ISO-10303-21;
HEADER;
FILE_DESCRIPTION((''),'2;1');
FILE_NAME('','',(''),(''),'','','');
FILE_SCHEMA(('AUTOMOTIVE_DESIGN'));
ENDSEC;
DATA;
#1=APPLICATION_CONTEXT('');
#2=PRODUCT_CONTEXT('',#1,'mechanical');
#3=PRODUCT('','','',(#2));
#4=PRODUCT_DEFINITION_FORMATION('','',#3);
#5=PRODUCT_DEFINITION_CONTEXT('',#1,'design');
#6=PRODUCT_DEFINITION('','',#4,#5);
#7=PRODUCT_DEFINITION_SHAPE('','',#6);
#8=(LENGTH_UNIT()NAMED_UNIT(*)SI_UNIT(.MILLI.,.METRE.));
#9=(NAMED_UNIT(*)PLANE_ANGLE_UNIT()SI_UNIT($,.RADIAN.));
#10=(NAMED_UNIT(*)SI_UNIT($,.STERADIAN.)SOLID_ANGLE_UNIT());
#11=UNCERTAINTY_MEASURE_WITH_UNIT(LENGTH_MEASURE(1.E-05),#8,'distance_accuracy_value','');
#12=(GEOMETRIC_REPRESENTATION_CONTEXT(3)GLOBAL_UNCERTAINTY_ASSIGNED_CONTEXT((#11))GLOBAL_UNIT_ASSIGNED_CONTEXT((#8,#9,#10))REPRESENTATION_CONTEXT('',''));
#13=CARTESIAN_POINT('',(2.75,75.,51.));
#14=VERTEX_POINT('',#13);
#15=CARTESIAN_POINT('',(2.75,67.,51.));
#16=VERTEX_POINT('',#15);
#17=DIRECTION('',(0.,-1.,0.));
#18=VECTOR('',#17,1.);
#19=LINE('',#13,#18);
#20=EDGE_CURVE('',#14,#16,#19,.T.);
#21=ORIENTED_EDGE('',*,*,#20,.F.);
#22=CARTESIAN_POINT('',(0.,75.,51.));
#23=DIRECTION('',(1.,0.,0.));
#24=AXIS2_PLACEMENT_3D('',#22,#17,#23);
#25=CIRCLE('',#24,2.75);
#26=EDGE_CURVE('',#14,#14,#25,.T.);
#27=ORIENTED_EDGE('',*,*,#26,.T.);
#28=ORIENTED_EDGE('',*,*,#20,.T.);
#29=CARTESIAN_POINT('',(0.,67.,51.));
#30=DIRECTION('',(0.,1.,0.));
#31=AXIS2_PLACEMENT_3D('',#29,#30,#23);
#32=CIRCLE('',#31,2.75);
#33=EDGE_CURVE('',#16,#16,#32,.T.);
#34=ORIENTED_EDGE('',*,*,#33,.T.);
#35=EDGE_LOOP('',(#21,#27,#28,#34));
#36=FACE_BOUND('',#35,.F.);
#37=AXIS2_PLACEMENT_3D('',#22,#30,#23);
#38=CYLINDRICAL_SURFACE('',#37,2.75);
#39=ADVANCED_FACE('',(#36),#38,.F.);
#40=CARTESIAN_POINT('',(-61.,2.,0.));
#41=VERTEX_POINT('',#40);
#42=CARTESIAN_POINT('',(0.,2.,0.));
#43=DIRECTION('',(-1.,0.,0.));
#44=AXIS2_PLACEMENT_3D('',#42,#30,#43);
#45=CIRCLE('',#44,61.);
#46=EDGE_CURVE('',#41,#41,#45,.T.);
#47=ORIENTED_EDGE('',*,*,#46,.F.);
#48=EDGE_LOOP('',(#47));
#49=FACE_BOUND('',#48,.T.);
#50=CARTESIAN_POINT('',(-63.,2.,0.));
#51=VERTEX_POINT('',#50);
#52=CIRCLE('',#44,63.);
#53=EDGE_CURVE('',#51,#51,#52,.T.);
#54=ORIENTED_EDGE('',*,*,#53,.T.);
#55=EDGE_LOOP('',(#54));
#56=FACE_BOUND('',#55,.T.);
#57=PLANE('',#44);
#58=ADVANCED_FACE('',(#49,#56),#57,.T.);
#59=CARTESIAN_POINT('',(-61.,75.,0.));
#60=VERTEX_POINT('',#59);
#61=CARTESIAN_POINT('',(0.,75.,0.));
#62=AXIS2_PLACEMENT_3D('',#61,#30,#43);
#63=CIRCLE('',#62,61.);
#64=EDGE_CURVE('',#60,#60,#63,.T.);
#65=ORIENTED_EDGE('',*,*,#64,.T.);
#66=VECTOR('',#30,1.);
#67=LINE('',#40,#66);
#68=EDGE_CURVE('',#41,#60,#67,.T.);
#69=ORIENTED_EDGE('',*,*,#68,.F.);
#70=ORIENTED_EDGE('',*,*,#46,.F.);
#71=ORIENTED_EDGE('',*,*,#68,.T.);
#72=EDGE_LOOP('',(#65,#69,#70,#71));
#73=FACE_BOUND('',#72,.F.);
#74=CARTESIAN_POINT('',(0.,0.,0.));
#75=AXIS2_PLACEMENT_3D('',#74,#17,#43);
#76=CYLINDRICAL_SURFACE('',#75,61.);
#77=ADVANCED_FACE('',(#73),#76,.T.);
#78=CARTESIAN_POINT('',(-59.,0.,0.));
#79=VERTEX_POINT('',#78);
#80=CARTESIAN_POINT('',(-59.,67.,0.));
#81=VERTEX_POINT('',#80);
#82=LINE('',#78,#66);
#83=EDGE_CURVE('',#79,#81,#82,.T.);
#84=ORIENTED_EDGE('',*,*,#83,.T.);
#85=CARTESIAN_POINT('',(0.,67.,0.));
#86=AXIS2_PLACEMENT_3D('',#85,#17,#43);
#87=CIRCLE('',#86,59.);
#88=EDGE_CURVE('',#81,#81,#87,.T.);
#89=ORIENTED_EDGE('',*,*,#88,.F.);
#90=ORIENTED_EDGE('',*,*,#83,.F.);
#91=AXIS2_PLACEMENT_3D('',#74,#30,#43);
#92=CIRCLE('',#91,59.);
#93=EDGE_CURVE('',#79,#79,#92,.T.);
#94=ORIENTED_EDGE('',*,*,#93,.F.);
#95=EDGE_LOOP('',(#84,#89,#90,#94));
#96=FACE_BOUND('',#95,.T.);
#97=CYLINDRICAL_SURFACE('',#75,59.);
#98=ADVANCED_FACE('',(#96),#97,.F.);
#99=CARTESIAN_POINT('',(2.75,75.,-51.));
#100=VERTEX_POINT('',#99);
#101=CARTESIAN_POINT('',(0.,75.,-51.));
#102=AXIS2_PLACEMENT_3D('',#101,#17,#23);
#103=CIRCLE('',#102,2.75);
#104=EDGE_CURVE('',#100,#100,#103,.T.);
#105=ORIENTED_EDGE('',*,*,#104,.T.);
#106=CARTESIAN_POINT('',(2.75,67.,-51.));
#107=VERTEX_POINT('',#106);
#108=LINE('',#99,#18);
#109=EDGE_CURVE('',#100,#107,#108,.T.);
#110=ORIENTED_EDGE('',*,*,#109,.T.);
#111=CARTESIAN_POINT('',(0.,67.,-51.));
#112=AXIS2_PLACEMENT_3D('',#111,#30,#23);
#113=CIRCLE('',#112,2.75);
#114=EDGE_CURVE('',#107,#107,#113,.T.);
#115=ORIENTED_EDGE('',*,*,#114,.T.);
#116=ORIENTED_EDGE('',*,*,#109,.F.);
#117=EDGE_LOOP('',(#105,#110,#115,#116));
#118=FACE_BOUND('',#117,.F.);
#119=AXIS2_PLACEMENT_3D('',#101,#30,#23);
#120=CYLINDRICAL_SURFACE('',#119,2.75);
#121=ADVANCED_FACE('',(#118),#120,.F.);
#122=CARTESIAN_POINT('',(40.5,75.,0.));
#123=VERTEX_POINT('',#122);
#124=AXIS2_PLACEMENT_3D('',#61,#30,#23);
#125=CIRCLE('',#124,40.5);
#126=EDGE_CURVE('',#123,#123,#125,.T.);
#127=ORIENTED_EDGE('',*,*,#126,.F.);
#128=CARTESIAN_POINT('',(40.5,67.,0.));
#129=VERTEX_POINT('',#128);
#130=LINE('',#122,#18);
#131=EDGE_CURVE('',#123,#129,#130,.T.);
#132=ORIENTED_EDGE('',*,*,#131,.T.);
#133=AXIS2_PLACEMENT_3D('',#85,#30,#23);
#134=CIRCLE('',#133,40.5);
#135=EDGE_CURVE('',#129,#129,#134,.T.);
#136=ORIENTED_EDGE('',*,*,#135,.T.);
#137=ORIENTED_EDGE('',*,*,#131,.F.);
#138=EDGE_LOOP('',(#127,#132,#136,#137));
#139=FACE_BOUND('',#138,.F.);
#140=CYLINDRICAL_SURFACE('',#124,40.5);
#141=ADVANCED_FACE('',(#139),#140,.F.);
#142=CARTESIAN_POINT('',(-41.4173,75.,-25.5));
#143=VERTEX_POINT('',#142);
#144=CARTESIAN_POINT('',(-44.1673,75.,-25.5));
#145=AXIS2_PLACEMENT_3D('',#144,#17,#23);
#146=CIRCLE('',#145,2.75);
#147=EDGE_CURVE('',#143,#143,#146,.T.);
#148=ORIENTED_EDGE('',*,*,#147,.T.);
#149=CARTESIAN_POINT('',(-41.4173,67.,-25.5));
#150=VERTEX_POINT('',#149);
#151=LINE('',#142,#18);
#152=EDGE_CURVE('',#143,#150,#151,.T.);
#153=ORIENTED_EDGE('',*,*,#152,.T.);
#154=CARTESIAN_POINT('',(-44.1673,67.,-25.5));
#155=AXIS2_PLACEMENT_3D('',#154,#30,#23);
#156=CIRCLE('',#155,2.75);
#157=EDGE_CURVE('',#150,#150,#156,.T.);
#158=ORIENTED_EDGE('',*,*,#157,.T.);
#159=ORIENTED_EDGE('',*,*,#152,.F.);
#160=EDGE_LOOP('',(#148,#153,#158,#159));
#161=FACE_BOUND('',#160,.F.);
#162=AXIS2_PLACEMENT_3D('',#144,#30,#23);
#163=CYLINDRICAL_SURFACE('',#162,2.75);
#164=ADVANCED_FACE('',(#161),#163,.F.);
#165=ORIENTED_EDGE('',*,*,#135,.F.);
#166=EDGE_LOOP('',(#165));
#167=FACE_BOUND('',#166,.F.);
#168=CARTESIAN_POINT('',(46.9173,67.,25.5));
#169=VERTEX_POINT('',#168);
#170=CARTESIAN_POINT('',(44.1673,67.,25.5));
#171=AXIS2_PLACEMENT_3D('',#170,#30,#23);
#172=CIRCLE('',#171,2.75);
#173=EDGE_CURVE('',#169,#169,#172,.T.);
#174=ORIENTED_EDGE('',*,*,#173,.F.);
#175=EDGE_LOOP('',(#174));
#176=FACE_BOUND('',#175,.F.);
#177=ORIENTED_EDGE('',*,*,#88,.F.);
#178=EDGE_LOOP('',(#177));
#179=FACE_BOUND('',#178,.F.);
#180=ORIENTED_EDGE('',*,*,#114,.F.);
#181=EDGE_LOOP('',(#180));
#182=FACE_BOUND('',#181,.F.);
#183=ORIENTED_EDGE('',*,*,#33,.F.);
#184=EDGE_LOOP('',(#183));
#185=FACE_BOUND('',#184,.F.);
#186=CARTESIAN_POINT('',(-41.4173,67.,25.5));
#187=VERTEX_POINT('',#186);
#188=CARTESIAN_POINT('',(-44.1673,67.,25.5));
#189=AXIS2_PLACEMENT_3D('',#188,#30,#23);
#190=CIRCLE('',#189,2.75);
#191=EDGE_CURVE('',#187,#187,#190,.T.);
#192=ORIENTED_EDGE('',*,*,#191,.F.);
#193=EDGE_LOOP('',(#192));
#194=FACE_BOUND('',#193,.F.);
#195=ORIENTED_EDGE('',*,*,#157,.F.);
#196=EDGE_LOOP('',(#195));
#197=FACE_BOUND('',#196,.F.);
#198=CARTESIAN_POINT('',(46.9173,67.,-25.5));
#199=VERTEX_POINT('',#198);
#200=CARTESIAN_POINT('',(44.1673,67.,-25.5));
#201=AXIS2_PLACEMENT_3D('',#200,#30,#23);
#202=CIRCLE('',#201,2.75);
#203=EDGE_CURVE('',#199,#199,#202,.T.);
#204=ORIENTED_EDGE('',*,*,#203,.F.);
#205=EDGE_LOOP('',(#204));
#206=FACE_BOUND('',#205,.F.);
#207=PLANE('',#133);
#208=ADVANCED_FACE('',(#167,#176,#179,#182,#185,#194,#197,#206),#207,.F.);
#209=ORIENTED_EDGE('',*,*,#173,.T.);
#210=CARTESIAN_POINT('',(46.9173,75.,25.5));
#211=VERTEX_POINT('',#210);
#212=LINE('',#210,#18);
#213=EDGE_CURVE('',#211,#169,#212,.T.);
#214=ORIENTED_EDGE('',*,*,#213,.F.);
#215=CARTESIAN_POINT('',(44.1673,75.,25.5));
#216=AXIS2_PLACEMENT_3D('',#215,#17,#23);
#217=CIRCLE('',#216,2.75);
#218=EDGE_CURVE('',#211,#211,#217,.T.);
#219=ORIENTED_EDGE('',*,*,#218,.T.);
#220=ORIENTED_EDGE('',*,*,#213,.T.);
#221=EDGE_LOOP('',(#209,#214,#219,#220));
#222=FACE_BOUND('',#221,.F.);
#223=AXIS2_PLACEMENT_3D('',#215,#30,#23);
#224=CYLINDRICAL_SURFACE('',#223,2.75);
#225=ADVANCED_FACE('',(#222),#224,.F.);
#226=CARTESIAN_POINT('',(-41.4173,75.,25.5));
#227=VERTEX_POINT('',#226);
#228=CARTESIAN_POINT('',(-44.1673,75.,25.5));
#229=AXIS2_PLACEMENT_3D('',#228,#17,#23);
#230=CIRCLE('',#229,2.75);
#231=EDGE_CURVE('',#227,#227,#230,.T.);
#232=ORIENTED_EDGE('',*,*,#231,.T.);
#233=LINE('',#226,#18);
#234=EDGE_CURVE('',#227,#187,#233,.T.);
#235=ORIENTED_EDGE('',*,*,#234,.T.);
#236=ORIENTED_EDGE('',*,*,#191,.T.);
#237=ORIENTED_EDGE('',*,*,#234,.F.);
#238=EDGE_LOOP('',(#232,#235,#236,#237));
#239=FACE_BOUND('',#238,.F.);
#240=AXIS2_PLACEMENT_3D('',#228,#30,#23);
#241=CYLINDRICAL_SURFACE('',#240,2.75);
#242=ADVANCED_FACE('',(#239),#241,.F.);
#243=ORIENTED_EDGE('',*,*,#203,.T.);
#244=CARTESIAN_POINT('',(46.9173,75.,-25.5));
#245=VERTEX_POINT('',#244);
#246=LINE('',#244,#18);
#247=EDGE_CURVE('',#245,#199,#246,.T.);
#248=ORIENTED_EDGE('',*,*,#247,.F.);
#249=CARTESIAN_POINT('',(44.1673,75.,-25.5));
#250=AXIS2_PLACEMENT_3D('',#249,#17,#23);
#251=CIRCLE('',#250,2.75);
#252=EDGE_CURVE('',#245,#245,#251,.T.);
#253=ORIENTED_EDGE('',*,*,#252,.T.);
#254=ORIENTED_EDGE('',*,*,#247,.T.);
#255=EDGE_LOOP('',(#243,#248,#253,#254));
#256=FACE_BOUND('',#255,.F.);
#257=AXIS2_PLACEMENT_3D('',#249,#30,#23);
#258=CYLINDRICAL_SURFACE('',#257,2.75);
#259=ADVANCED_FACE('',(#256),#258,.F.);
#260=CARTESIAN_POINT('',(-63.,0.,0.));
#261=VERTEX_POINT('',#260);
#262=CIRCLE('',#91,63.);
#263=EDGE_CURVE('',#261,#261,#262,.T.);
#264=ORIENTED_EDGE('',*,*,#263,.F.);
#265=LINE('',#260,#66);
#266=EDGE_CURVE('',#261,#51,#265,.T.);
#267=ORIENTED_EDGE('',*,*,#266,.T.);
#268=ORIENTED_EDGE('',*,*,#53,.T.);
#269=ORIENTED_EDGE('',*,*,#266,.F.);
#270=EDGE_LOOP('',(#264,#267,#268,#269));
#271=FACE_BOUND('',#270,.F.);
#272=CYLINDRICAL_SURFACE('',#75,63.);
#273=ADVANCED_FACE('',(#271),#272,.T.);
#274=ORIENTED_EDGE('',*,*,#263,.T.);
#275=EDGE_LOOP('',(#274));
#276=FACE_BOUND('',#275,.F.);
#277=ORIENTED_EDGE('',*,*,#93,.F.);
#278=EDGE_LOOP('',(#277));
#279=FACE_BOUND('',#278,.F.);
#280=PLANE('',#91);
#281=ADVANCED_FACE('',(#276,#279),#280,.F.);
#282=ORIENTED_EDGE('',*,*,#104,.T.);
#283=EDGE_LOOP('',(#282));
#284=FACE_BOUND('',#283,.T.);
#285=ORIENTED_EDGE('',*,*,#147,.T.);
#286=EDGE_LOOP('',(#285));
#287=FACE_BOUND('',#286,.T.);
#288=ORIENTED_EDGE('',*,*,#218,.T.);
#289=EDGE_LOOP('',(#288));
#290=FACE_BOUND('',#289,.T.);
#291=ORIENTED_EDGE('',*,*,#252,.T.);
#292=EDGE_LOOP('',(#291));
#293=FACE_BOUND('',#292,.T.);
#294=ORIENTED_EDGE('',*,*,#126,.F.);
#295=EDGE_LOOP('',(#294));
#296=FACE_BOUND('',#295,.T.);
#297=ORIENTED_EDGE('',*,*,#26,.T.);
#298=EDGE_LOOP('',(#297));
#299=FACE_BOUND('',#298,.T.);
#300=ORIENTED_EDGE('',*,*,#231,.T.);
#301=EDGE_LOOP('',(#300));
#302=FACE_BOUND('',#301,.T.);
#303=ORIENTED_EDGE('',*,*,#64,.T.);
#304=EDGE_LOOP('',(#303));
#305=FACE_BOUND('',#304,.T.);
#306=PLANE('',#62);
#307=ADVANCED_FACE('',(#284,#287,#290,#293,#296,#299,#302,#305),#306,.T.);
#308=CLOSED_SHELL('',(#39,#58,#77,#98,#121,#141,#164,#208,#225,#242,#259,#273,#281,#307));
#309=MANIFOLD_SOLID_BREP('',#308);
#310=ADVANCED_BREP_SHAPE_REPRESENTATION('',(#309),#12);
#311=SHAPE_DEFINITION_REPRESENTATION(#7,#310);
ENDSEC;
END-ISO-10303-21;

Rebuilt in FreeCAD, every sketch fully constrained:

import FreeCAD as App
import Part
import Sketcher

V = App.Vector

doc = App.newDocument("Part")
params = doc.addObject("Spreadsheet::Sheet", "Params")
for row, (alias, value) in enumerate([
    ("sketch1_diameter", "126 mm"),
    ("sketch1_diameter2", "122 mm"),
    ("pad1_length", "2 mm"),
    ("sketch2_diameter", "122 mm"),
    ("sketch2_diameter2", "118 mm"),
    ("pad2_length", "75 mm"),
    ("sketch3_diameter", "122 mm"),
    ("sketch3_diameter2", "81 mm"),
    ("pad3_length", "8 mm"),
    ("sketch4_diameter", "5.5 mm"),
    ("pocket1_length", "10 mm"),
], start=1):
    params.set(f"A{row}", alias)
    params.set(f"B{row}", "=" + value)
    params.setAlias(f"B{row}", alias)

body = doc.addObject("PartDesign::Body", "Body")

# Sketch on XZ plane
sketch1 = body.newObject("Sketcher::SketchObject", "Sketch")
sketch1.AttachmentSupport = (doc.getObject("XZ_Plane"), [""])
sketch1.MapMode = "FlatFace"
sketch1.addGeometry([
    Part.Circle(V(0, 0, 0), V(0, 0, 1), 63),
    Part.Circle(V(0, 0, 0), V(0, 0, 1), 61),
], False)
sketch1.addConstraint([
    Sketcher.Constraint("Coincident", 0, 3, -1, 1),
    Sketcher.Constraint("Coincident", 1, 3, -1, 1),
    Sketcher.Constraint("Diameter", 0, 126.0),
    Sketcher.Constraint("Diameter", 1, 122.0),
])
sketch1.setExpression("Constraints[2]", "Params.sketch1_diameter")
sketch1.setExpression("Constraints[3]", "Params.sketch1_diameter2")
pad1 = body.newObject("PartDesign::Pad", "Pad")
pad1.Profile = sketch1
pad1.setExpression("Length", "Params.pad1_length")
pad1.Reversed = True

# Sketch on XZ plane
sketch2 = body.newObject("Sketcher::SketchObject", "Sketch001")
sketch2.AttachmentSupport = (doc.getObject("XZ_Plane"), [""])
sketch2.MapMode = "FlatFace"
sketch2.addGeometry([
    Part.Circle(V(0, 0, 0), V(0, 0, 1), 61),
    Part.Circle(V(0, 0, 0), V(0, 0, 1), 59),
], False)
sketch2.addConstraint([
    Sketcher.Constraint("Coincident", 0, 3, -1, 1),
    Sketcher.Constraint("Coincident", 1, 3, -1, 1),
    Sketcher.Constraint("Diameter", 0, 122.0),
    Sketcher.Constraint("Diameter", 1, 118.0),
])
sketch2.setExpression("Constraints[2]", "Params.sketch2_diameter")
sketch2.setExpression("Constraints[3]", "Params.sketch2_diameter2")
pad2 = body.newObject("PartDesign::Pad", "Pad001")
pad2.Profile = sketch2
pad2.setExpression("Length", "Params.pad2_length")
pad2.Reversed = True

# Sketch on XZ plane
sketch3 = body.newObject("Sketcher::SketchObject", "Sketch002")
sketch3.AttachmentSupport = (doc.getObject("XZ_Plane"), [""])
sketch3.MapMode = "FlatFace"
sketch3.AttachmentOffset = App.Placement(V(0, 0, -75), App.Rotation())
sketch3.addGeometry([
    Part.Circle(V(0, 0, 0), V(0, 0, 1), 61),
    Part.Circle(V(0, 0, 0), V(0, 0, 1), 40),
], False)
sketch3.addConstraint([
    Sketcher.Constraint("Coincident", 0, 3, -1, 1),
    Sketcher.Constraint("Coincident", 1, 3, -1, 1),
    Sketcher.Constraint("Diameter", 0, 122.0),
    Sketcher.Constraint("Diameter", 1, 81.0),
])
sketch3.setExpression("Constraints[2]", "Params.sketch3_diameter")
sketch3.setExpression("Constraints[3]", "Params.sketch3_diameter2")
pad3 = body.newObject("PartDesign::Pad", "Pad002")
pad3.Profile = sketch3
pad3.setExpression("Length", "Params.pad3_length")

# Sketch on XZ plane
sketch4 = body.newObject("Sketcher::SketchObject", "Sketch003")
sketch4.AttachmentSupport = (doc.getObject("XZ_Plane"), [""])
sketch4.MapMode = "FlatFace"
sketch4.AttachmentOffset = App.Placement(V(0, 0, -75), App.Rotation())
sketch4.addGeometry([
    Part.Circle(V(44.2, -25.5, 0), V(0, 0, 1), 2.8),  # 0
    Part.Circle(V(44.2, 25.5, 0), V(0, 0, 1), 2.8),  # 1
    Part.Circle(V(0, -51, 0), V(0, 0, 1), 2.8),  # 2
    Part.Circle(V(0, 51, 0), V(0, 0, 1), 2.8),  # 3
    Part.Circle(V(-44.2, -25.5, 0), V(0, 0, 1), 2.8),  # 4
    Part.Circle(V(-44.2, 25.5, 0), V(0, 0, 1), 2.8),  # 5
], False)
sketch4.addConstraint([
    Sketcher.Constraint("Equal", 0, 1),
    Sketcher.Constraint("Equal", 1, 2),
    Sketcher.Constraint("Equal", 2, 3),
    Sketcher.Constraint("Equal", 3, 4),
    Sketcher.Constraint("Equal", 4, 5),
    Sketcher.Constraint("Symmetric", 2, 3, 3, 3, -1, 1),
    Sketcher.Constraint("Symmetric", 1, 3, 4, 3, -1, 1),
    Sketcher.Constraint("Symmetric", 0, 3, 5, 3, -1, 1),
    Sketcher.Constraint("Symmetric", 0, 3, 4, 3, -2),
    Sketcher.Constraint("PointOnObject", 2, 3, -2),
    Sketcher.Constraint("Diameter", 0, 5.5),
    Sketcher.Constraint("DistanceY", 2, 3, 3, 3, 102.0),
    Sketcher.Constraint("DistanceY", 0, 3, 1, 3, 51.0),
    Sketcher.Constraint("DistanceX", -1, 1, 0, 3, 44.1673),
])
sketch4.setExpression("Constraints[10]", "Params.sketch4_diameter")
pocket1 = body.newObject("PartDesign::Pocket", "Pocket")
pocket1.Profile = sketch4
pocket1.setExpression("Length", "Params.pocket1_length")
pocket1.Reversed = True

doc.recompute()
